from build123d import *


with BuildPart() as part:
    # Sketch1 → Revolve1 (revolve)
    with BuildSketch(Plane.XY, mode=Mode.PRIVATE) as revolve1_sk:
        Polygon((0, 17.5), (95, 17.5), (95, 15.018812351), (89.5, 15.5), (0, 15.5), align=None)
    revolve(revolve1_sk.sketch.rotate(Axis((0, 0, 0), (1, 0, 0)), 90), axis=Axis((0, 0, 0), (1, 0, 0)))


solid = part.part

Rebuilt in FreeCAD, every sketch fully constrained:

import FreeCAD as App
import Part
import Sketcher
Q = App.Units.Quantity


def add_polygon(sketch, points):
    """Adds a closed chain of lines whose ends are joined by coincident constraints."""
    first, n = sketch.GeometryCount, len(points)
    for a, b in zip(points, points[1:] + points[:1]):
        sketch.addGeometry(Part.LineSegment(App.Vector(*a, 0), App.Vector(*b, 0)), False)
    for i in range(n):
        sketch.addConstraint(Sketcher.Constraint("Coincident", first + i, 2, first + (i + 1) % n, 1))

doc = App.newDocument("Part")
body = doc.addObject("PartDesign::Body", "Body")

# Sketch on XY plane
sketch1 = body.newObject("Sketcher::SketchObject", "Sketch")
sketch1.AttachmentSupport = (doc.getObject("XY_Plane"), [""])
sketch1.MapMode = "FlatFace"
add_polygon(sketch1, [(95, 17.5), (0, 17.5), (0, 15.5), (89.5, 15.5), (95, 15.018812)])  # lines 0-4
sketch1.addConstraint(Sketcher.Constraint("Horizontal", 0))
sketch1.addConstraint(Sketcher.Constraint("Vertical", 1))
sketch1.addConstraint(Sketcher.Constraint("Horizontal", 2))
sketch1.addConstraint(Sketcher.Constraint("Vertical", 4))
sketch1.addConstraint(Sketcher.Constraint("PointOnObject", 0, 2, -2))
sketch1.addConstraint(Sketcher.Constraint("DistanceX", 0, 2, 0, 1, 95.0))
sketch1.addConstraint(Sketcher.Constraint("DistanceY", 1, 2, 1, 1, 2.0))
sketch1.addConstraint(Sketcher.Constraint("Angle", 3, Q("-5 deg")))
sketch1.addConstraint(Sketcher.Constraint("DistanceX", 2, 1, 2, 2, 89.5))
sketch1.addConstraint(Sketcher.Constraint("DistanceY", -1, 1, 0, 2, 17.5))
revolution = body.newObject("PartDesign::Revolution", "Revolution")
revolution.Profile = sketch1
revolution.ReferenceAxis = (sketch1, ["H_Axis"])
revolution.Angle = 360

doc.recompute()
